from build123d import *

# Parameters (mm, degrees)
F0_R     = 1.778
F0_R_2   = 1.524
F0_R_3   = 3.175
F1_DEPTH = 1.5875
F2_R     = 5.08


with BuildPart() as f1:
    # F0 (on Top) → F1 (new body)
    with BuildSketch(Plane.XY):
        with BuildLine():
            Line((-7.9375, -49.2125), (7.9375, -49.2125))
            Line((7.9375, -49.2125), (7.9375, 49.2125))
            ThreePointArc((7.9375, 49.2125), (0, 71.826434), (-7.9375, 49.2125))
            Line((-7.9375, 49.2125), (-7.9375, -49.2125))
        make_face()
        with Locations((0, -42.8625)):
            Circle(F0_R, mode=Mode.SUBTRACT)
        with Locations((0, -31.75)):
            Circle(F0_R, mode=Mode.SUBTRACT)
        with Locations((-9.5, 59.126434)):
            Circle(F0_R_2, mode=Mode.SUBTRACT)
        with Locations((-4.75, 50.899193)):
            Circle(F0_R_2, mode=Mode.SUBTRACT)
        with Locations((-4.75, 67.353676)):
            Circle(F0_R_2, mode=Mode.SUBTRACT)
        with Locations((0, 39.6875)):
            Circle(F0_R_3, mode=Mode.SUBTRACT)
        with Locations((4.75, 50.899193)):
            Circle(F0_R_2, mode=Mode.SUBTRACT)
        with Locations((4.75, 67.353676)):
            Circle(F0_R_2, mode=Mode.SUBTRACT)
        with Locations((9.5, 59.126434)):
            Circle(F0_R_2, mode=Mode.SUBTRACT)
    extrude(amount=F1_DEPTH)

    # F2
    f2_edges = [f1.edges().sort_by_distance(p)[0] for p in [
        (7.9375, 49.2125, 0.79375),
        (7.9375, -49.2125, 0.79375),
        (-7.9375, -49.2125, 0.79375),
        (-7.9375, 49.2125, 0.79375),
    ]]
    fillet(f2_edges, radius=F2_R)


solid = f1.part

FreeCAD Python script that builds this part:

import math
import FreeCAD as App
import Part
import Sketcher

V = App.Vector
Q = App.Units.Quantity


def edges_at(feature, points):
    """Names of the edges that pass closest to the given points."""
    edges = feature.Shape.Edges
    near = lambda p: min(range(len(edges)), key=lambda i: edges[i].distToShape(Part.Vertex(*p))[0])
    return sorted({f"Edge{near(p) + 1}" for p in points})

doc = App.newDocument("Part")
body = doc.addObject("PartDesign::Body", "Body")

# Sketch on XY plane
sketch1 = doc.addObject("Sketcher::SketchObject", "Sketch")
body.addObject(sketch1)
sketch1.AttachmentSupport = (doc.XY_Plane, [""])
sketch1.MapMode = "FlatFace"
sketch1.addGeometry([
    Part.LineSegment(V(-7.9375, -49.2125, 0), V(7.9375, -49.2125, 0)),  # 0
    Part.LineSegment(V(7.9375, -49.2125, 0), V(7.9375, 49.2125, 0)),  # 1
    Part.ArcOfCircle(Part.Circle(V(0, 59.126434, 0), V(0, 0, 1), 12.7), math.radians(-51.317812), math.radians(231.317812)),  # 2
    Part.LineSegment(V(-7.9375, 49.2125, 0), V(-7.9375, -49.2125, 0)),  # 3
    Part.Circle(V(0, -42.8625, 0), V(0, 0, 1), 1.778),  # 4
    Part.Circle(V(0, -31.75, 0), V(0, 0, 1), 1.778),  # 5
    Part.Circle(V(-9.5, 59.126434, 0), V(0, 0, 1), 1.524),  # 6
    Part.Circle(V(-4.75, 50.899193, 0), V(0, 0, 1), 1.524),  # 7
    Part.Circle(V(-4.75, 67.353676, 0), V(0, 0, 1), 1.524),  # 8
    Part.Circle(V(0, 39.6875, 0), V(0, 0, 1), 3.175),  # 9
    Part.Circle(V(4.75, 50.899193, 0), V(0, 0, 1), 1.524),  # 10
    Part.Circle(V(4.75, 67.353676, 0), V(0, 0, 1), 1.524),  # 11
    Part.Circle(V(9.5, 59.126434, 0), V(0, 0, 1), 1.524),  # 12
], False)
sketch1.addConstraint([
    Sketcher.Constraint("Coincident", 0, 2, 1, 1),
    Sketcher.Constraint("Coincident", 1, 2, 2, 1),
    Sketcher.Constraint("Coincident", 2, 2, 3, 1),
    Sketcher.Constraint("Coincident", 3, 2, 0, 1),
    Sketcher.Constraint("Horizontal", 0),
    Sketcher.Constraint("Vertical", 1),
    Sketcher.Constraint("Vertical", 3),
    Sketcher.Constraint("Equal", 4, 5),
    Sketcher.Constraint("Equal", 6, 7),
    Sketcher.Constraint("Equal", 7, 8),
    Sketcher.Constraint("Equal", 8, 10),
    Sketcher.Constraint("Equal", 10, 11),
    Sketcher.Constraint("Equal", 11, 12),
    Sketcher.Constraint("Symmetric", 0, 2, 2, 2, -1, 1),
    Sketcher.Constraint("Symmetric", 7, 3, 10, 3, -2),
    Sketcher.Constraint("Symmetric", 8, 3, 11, 3, -2),
    Sketcher.Constraint("Symmetric", 6, 3, 12, 3, -2),
    Sketcher.Constraint("PointOnObject", 2, 3, -2),
    Sketcher.Constraint("PointOnObject", 4, 3, -2),
    Sketcher.Constraint("PointOnObject", 5, 3, -2),
    Sketcher.Constraint("PointOnObject", 9, 3, -2),
    Sketcher.Constraint("Horizontal", 2, 3, 6, 3),
    Sketcher.Constraint("Vertical", 7, 3, 8, 3),
    Sketcher.Constraint("Radius", 2, Q("0.5 in")),
    Sketcher.Constraint("Diameter", 4, Q("0.14 in")),
    Sketcher.Constraint("Diameter", 6, Q("0.12 in")),
    Sketcher.Constraint("Diameter", 9, Q("0.25 in")),
    Sketcher.Constraint("DistanceY", 0, 2, 9, 3, Q("3.5 in")),
    Sketcher.Constraint("DistanceX", 0, 1, 0, 2, Q("0.625 in")),
    Sketcher.Constraint("DistanceY", 1, 1, 1, 2, Q("3.875 in")),
    Sketcher.Constraint("DistanceY", 5, 3, -1, 1, Q("1.25 in")),
    Sketcher.Constraint("DistanceY", 0, 2, 4, 3, Q("0.25 in")),
    Sketcher.Constraint("DistanceX", 6, 3, -1, 1, 9.5),
    Sketcher.Constraint("DistanceX", 7, 3, -1, 1, 4.75),
    Sketcher.Constraint("DistanceY", 7, 3, 6, 3, 8.227241),
    Sketcher.Constraint("DistanceY", 2, 3, 8, 3, 8.227242),
])
pad1 = doc.addObject("PartDesign::Pad", "Pad")
body.addObject(pad1)
pad1.Profile = sketch1
pad1.Length = Q("0.0625 in")
doc.recompute()

fillet = doc.addObject("PartDesign::Fillet", "Fillet")
body.addObject(fillet)
fillet.Base = (pad1, edges_at(pad1, [
    (7.938, 49.212, 0.794),
    (7.938, -49.212, 0.794),
    (-7.938, -49.212, 0.794),
    (-7.938, 49.212, 0.794),
]))
fillet.Radius = Q("0.2 in")

doc.recompute()
